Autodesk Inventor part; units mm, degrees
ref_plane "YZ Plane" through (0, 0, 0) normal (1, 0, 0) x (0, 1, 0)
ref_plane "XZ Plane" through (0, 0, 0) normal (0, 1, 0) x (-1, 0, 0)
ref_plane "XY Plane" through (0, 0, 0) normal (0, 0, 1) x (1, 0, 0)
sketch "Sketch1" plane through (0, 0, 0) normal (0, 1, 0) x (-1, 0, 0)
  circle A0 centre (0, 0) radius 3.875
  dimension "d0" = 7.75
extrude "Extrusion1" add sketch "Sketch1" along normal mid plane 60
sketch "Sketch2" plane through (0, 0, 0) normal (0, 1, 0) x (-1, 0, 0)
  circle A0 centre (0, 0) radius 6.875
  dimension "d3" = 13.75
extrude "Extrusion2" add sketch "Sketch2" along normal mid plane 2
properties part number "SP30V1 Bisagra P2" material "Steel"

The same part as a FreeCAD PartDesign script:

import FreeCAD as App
import Part
import Sketcher

V = App.Vector
Q = App.Units.Quantity

doc = App.newDocument("Part")
params = doc.addObject("Spreadsheet::Sheet", "Params")
for row, (alias, value) in enumerate([
    ("sketch1_diameter", "7.75 mm"),
    ("pad1_length", "60 mm"),
    ("sketch2_diameter", "13.75 mm"),
    ("pad2_length", "2 mm"),
], start=1):
    params.set(f"A{row}", alias)
    params.set(f"B{row}", "=" + value)
    params.setAlias(f"B{row}", alias)

body = doc.addObject("PartDesign::Body", "Body")

# Sketch on XZ plane
sketch1 = doc.addObject("Sketcher::SketchObject", "Sketch")
body.addObject(sketch1)
sketch1.AttachmentSupport = (doc.XZ_Plane, [""])
sketch1.MapMode = "FlatFace"
sketch1.addGeometry(Part.Circle(V(0, 0, 0), V(0, 0, 1), 3.9), False)
sketch1.addConstraint(Sketcher.Constraint("Coincident", 0, 3, -1, 1))
sketch1.addConstraint(Sketcher.Constraint("Diameter", 0, Q("7.75 mm")))
sketch1.setExpression("Constraints[1]", "Params.sketch1_diameter")
pad1 = doc.addObject("PartDesign::Pad", "Pad")
body.addObject(pad1)
pad1.Profile = sketch1
pad1.setExpression("Length", "Params.pad1_length")
pad1.Midplane = True

# Sketch on XZ plane
sketch2 = doc.addObject("Sketcher::SketchObject", "Sketch001")
body.addObject(sketch2)
sketch2.AttachmentSupport = (doc.XZ_Plane, [""])
sketch2.MapMode = "FlatFace"
sketch2.addGeometry(Part.Circle(V(0, 0, 0), V(0, 0, 1), 7), False)
sketch2.addConstraint(Sketcher.Constraint("Coincident", 0, 3, -1, 1))
sketch2.addConstraint(Sketcher.Constraint("Diameter", 0, Q("13.75 mm")))
sketch2.setExpression("Constraints[1]", "Params.sketch2_diameter")
pad2 = doc.addObject("PartDesign::Pad", "Pad001")
body.addObject(pad2)
pad2.Profile = sketch2
pad2.setExpression("Length", "Params.pad2_length")
pad2.Midplane = True

doc.recompute()
